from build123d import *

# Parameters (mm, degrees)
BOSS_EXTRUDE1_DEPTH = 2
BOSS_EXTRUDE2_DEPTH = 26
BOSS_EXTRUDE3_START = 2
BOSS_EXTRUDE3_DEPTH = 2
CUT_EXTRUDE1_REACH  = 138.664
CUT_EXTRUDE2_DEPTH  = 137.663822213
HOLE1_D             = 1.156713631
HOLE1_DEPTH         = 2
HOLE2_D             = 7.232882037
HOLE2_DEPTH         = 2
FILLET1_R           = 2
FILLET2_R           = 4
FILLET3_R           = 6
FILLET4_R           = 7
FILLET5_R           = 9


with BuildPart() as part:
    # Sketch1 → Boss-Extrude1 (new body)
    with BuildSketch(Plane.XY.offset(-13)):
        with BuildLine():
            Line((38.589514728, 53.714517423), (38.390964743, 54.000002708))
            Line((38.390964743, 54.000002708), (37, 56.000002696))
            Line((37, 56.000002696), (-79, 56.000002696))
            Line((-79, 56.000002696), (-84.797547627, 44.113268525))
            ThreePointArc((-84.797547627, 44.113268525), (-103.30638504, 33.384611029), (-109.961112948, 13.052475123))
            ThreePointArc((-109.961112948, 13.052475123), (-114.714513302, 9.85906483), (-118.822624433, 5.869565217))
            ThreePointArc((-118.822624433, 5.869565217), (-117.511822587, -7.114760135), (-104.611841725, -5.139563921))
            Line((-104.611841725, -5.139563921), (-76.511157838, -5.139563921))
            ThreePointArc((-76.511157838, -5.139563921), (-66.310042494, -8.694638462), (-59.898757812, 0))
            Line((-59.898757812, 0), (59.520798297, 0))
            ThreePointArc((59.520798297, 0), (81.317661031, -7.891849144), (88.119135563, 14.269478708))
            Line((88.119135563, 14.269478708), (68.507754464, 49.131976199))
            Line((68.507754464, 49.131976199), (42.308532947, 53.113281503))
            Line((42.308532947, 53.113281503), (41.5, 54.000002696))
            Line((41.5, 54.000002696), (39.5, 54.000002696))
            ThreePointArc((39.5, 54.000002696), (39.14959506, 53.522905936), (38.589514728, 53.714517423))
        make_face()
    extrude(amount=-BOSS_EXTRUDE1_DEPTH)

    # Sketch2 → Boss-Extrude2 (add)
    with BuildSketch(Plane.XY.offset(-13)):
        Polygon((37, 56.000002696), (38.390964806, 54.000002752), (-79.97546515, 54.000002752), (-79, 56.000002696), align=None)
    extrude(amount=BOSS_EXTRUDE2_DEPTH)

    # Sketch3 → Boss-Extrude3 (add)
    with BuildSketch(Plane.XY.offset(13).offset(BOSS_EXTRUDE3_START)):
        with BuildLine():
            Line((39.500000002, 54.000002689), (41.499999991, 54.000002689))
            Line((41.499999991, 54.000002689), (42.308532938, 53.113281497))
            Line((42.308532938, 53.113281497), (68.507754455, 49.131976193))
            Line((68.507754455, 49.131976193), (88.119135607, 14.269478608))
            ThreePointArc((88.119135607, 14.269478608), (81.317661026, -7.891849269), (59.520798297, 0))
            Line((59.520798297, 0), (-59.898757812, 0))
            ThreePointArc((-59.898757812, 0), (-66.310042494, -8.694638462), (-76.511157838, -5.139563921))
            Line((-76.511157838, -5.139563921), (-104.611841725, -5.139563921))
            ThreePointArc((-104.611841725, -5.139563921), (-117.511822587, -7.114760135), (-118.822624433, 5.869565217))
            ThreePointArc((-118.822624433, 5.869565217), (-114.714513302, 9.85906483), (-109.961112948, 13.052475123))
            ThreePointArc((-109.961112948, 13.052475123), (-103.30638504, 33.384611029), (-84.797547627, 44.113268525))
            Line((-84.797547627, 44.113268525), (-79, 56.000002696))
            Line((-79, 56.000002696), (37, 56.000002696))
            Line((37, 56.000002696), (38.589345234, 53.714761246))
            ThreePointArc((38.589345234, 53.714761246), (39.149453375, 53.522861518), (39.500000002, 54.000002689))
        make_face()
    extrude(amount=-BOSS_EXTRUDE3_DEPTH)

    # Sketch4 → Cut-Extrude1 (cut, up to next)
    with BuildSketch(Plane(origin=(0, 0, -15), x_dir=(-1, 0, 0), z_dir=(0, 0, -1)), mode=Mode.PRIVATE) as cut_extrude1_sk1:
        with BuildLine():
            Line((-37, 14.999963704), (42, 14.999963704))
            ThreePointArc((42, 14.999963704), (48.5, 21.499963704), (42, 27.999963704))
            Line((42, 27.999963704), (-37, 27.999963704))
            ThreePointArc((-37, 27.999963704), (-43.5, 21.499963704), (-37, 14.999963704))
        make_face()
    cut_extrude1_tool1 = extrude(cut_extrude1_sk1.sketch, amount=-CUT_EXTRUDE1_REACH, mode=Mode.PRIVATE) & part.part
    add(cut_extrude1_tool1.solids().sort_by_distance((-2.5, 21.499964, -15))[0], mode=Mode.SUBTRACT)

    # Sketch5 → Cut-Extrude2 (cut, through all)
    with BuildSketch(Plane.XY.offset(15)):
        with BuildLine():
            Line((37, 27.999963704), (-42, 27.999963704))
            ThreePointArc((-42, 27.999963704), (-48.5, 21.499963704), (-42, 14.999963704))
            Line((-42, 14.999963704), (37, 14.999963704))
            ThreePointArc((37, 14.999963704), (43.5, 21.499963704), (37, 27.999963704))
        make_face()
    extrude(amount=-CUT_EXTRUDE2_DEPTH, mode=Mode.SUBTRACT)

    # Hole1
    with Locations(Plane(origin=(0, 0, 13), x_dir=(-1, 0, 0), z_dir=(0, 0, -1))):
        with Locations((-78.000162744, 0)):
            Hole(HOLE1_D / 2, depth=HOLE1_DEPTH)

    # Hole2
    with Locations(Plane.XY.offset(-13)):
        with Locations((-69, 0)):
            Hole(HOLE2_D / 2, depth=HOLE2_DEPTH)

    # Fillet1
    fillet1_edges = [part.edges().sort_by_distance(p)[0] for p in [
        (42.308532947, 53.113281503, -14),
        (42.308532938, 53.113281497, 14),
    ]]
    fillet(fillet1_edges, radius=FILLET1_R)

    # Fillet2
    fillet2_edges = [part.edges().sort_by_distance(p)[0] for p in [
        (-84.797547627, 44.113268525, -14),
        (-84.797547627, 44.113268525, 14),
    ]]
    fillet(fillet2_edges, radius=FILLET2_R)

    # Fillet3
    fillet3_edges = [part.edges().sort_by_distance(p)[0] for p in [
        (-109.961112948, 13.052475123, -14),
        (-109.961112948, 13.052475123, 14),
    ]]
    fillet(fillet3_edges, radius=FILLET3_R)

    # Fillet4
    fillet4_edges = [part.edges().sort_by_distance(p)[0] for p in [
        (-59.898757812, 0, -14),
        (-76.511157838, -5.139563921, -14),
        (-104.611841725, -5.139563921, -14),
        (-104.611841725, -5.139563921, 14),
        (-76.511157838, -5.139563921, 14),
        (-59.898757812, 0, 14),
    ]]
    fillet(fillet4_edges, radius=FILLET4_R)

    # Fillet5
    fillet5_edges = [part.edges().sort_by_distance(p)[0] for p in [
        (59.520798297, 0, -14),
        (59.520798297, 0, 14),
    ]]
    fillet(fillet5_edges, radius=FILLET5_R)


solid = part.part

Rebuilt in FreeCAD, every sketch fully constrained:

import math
import FreeCAD as App
import Part
import Sketcher
from FreeCAD import Vector
Q = App.Units.Quantity


def edges_at(feature, points):
    """Names of the edges that pass closest to the given points."""
    edges = feature.Shape.Edges
    near = lambda p: min(range(len(edges)), key=lambda i: edges[i].distToShape(Part.Vertex(*p))[0])
    return sorted({f"Edge{near(p) + 1}" for p in points})

doc = App.newDocument("Part")
body = doc.addObject("PartDesign::Body", "Body")

# Sketch on XY plane
sketch1 = body.newObject("Sketcher::SketchObject", "Sketch")
sketch1.AttachmentSupport = (doc.getObject("XY_Plane"), [""])
sketch1.MapMode = "FlatFace"
sketch1.AttachmentOffset = App.Placement(Vector(0, 0, -13), App.Rotation())
sketch1.addGeometry([
    Part.LineSegment(Vector(38.59, 53.71, 0), Vector(38.39, 54, 0)),  # 0
    Part.LineSegment(Vector(38.39, 54, 0), Vector(37, 56, 0)),  # 1
    Part.LineSegment(Vector(37, 56, 0), Vector(-79, 56, 0)),  # 2
    Part.LineSegment(Vector(-79, 56, 0), Vector(-84.8, 44.11, 0)),  # 3
    Part.ArcOfCircle(Part.Circle(Vector(-80, 14.5, 0), Vector(0, 0, 1), 30), math.radians(99), math.radians(183)),  # 4
    Part.ArcOfCircle(Part.Circle(Vector(-94.56, -15, 0), Vector(0, 0, 1), 32), math.radians(119), math.radians(139)),  # 5
    Part.ArcOfCircle(Part.Circle(Vector(-112, 0, 0), Vector(0, 0, 1), 9), math.radians(139), math.radians(325)),  # 6
    Part.LineSegment(Vector(-104.61, -5.14, 0), Vector(-76.51, -5.14, 0)),  # 7
    Part.ArcOfCircle(Part.Circle(Vector(-69, 0, 0), Vector(0, 0, 1), 9.1), math.radians(-146), math.radians(0)),  # 8
    Part.LineSegment(Vector(-59.9, 0, 0), Vector(59.52, 0, 0)),  # 9
    Part.ArcOfCircle(Part.Circle(Vector(74.17, 6.42, 0), Vector(0, 0, 1), 16), math.radians(-156), math.radians(29)),  # 10
    Part.LineSegment(Vector(88.12, 14.27, 0), Vector(68.51, 49.13, 0)),  # 11
    Part.LineSegment(Vector(68.51, 49.13, 0), Vector(42.31, 53.11, 0)),  # 12
    Part.LineSegment(Vector(42.31, 53.11, 0), Vector(41.5, 54, 0)),  # 13
    Part.LineSegment(Vector(41.5, 54, 0), Vector(39.5, 54, 0)),  # 14
    Part.ArcOfCircle(Part.Circle(Vector(39, 54, 0), Vector(0, 0, 1), 0.5), math.radians(-145), math.radians(0)),  # 15
], False)
sketch1.addConstraint([
    Sketcher.Constraint("Coincident", 0, 2, 1, 1),
    Sketcher.Constraint("Coincident", 1, 2, 2, 1),
    Sketcher.Constraint("Coincident", 2, 2, 3, 1),
    Sketcher.Constraint("Coincident", 3, 2, 4, 1),
    Sketcher.Constraint("Coincident", 4, 2, 5, 1),
    Sketcher.Constraint("Tangent", 5, 2, 6, 1),
    Sketcher.Constraint("Coincident", 6, 2, 7, 1),
    Sketcher.Constraint("Coincident", 7, 2, 8, 1),
    Sketcher.Constraint("Coincident", 8, 2, 9, 1),
    Sketcher.Constraint("Coincident", 9, 2, 10, 1),
    Sketcher.Constraint("Tangent", 10, 2, 11, 1),
    Sketcher.Constraint("Coincident", 11, 2, 12, 1),
    Sketcher.Constraint("Coincident", 12, 2, 13, 1),
    Sketcher.Constraint("Coincident", 13, 2, 14, 1),
    Sketcher.Constraint("Coincident", 14, 2, 15, 2),
    Sketcher.Constraint("Tangent", 15, 1, 0, 1),
    Sketcher.Constraint("Horizontal", 2),
    Sketcher.Constraint("Horizontal", 7),
    Sketcher.Constraint("Horizontal", 9),
    Sketcher.Constraint("Horizontal", 14),
    Sketcher.Constraint("PointOnObject", 6, 3, -1),
    Sketcher.Constraint("PointOnObject", 8, 3, -1),
    Sketcher.Constraint("PointOnObject", 8, 2, -1),
    Sketcher.Constraint("Parallel", 0, 1),
    Sketcher.Constraint("Horizontal", 15, 3, 0, 2),
    Sketcher.Constraint("Horizontal", 0, 2, 13, 2),
    Sketcher.Constraint("Radius", 4, Q("30 mm")),
    Sketcher.Constraint("Radius", 5, Q("32 mm")),
    Sketcher.Constraint("Radius", 6, Q("9 mm")),
    Sketcher.Constraint("Radius", 10, Q("16 mm")),
    Sketcher.Constraint("Radius", 15, Q("0.5 mm")),
    Sketcher.Constraint("DistanceX", 2, 2, 2, 1, Q("116 mm")),
    Sketcher.Constraint("DistanceX", 14, 2, 14, 1, Q("2 mm")),
    Sketcher.Constraint("Angle", 3, Q("-116 deg")),
    Sketcher.Constraint("Distance", 11, Q("40 mm")),
    Sketcher.Constraint("DistanceY", 5, 3, -1, 1, Q("15 mm")),
    Sketcher.Constraint("DistanceX", 6, 3, -1, 1, Q("112 mm")),
    Sketcher.Constraint("DistanceX", 8, 3, -1, 1, Q("69 mm")),
    Sketcher.Constraint("DistanceX", -1, 1, 15, 3, Q("39 mm")),
    Sketcher.Constraint("DistanceX", -1, 1, 1, 2, Q("37 mm")),
    Sketcher.Constraint("DistanceY", 0, 2, 1, 2, Q("2 mm")),
    Sketcher.Constraint("Distance", 12, Q("26.5 mm")),
    Sketcher.Constraint("Distance", 13, Q("1.2 mm")),
    Sketcher.Constraint("DistanceY", -1, 1, 4, 3, Q("14.5 mm")),
    Sketcher.Constraint("Radius", 8, Q("9.101242 mm")),
    Sketcher.Constraint("DistanceX", 10, 3, 10, 2, Q("13.944999 mm")),
    Sketcher.Constraint("DistanceX", -1, 1, 9, 2, Q("59.520798 mm")),
    Sketcher.Constraint("DistanceX", 7, 2, 8, 2, Q("16.6124 mm")),
    Sketcher.Constraint("DistanceY", -1, 1, 3, 2, Q("44.113269 mm")),
    Sketcher.Constraint("DistanceY", -1, 1, 10, 2, Q("14.269479 mm")),
    Sketcher.Constraint("DistanceY", -1, 1, 12, 2, Q("53.113282 mm")),
])
pad1 = body.newObject("PartDesign::Pad", "Pad")
pad1.Profile = sketch1
pad1.Length = 2
pad1.Reversed = True

# Sketch on XY plane
sketch2 = body.newObject("Sketcher::SketchObject", "Sketch001")
sketch2.AttachmentSupport = (doc.getObject("XY_Plane"), [""])
sketch2.MapMode = "FlatFace"
sketch2.AttachmentOffset = App.Placement(Vector(0, 0, -13), App.Rotation())
sketch2.addGeometry([
    Part.LineSegment(Vector(38.4, 54, 0), Vector(37, 56, 0)),
    Part.LineSegment(Vector(37, 56, 0), Vector(-79, 56, 0)),
    Part.LineSegment(Vector(-79, 56, 0), Vector(-80, 54, 0)),
    Part.LineSegment(Vector(-80, 54, 0), Vector(38.4, 54, 0)),
], False)
sketch2.addConstraint([
    Sketcher.Constraint("Coincident", 0, 2, 1, 1),
    Sketcher.Constraint("Coincident", 1, 2, 2, 1),
    Sketcher.Constraint("Coincident", 2, 2, 3, 1),
    Sketcher.Constraint("Coincident", 3, 2, 0, 1),
    Sketcher.Constraint("Horizontal", 1),
    Sketcher.Constraint("Horizontal", 3),
    Sketcher.Constraint("DistanceX", 1, 2, 1, 1, Q("116 mm")),
    Sketcher.Constraint("Angle", 2, Q("-116 deg")),
    Sketcher.Constraint("DistanceX", -1, 1, 0, 2, Q("37 mm")),
    Sketcher.Constraint("DistanceY", 2, 2, 1, 2, Q("2 mm")),
    Sketcher.Constraint("DistanceX", 3, 1, 3, 2, Q("118.36643 mm")),
    Sketcher.Constraint("DistanceY", -1, 1, 0, 2, Q("56.000003 mm")),
])
pad2 = body.newObject("PartDesign::Pad", "Pad001")
pad2.Profile = sketch2
pad2.Length = 26

# Sketch on XY plane
sketch3 = body.newObject("Sketcher::SketchObject", "Sketch002")
sketch3.AttachmentSupport = (doc.getObject("XY_Plane"), [""])
sketch3.MapMode = "FlatFace"
sketch3.AttachmentOffset = App.Placement(Vector(0, 0, 15), App.Rotation())
sketch3.addGeometry([
    Part.LineSegment(Vector(41.5, 54, 0), Vector(39.5, 54, 0)),  # 0
    Part.ArcOfCircle(Part.Circle(Vector(39, 54, 0), Vector(0, 0, 1), 0.5), math.radians(-145), math.radians(0)),  # 1
    Part.LineSegment(Vector(38.6, 53.7, 0), Vector(37, 56, 0)),  # 2
    Part.LineSegment(Vector(37, 56, 0), Vector(-79, 56, 0)),  # 3
    Part.LineSegment(Vector(-79, 56, 0), Vector(-84.8, 44.1, 0)),  # 4
    Part.ArcOfCircle(Part.Circle(Vector(-80, 14.5, 0), Vector(0, 0, 1), 30), math.radians(99), math.radians(183)),  # 5
    Part.ArcOfCircle(Part.Circle(Vector(-94.6, -15, 0), Vector(0, 0, 1), 32), math.radians(119), math.radians(139)),  # 6
    Part.ArcOfCircle(Part.Circle(Vector(-112, 0, 0), Vector(0, 0, 1), 9), math.radians(139), math.radians(325)),  # 7
    Part.LineSegment(Vector(-104.6, -5.1, 0), Vector(-76.5, -5.1, 0)),  # 8
    Part.ArcOfCircle(Part.Circle(Vector(-69, 0, 0), Vector(0, 0, 1), 9.1), math.radians(-146), math.radians(0)),  # 9
    Part.LineSegment(Vector(-59.9, 0, 0), Vector(59.5, 0, 0)),  # 10
    Part.ArcOfCircle(Part.Circle(Vector(74.2, 6.4, 0), Vector(0, 0, 1), 16), math.radians(-156), math.radians(29)),  # 11
    Part.LineSegment(Vector(88.1, 14.3, 0), Vector(68.5, 49.1, 0)),  # 12
    Part.LineSegment(Vector(68.5, 49.1, 0), Vector(42.3, 53.1, 0)),  # 13
    Part.LineSegment(Vector(42.3, 53.1, 0), Vector(41.5, 54, 0)),  # 14
], False)
sketch3.addConstraint([
    Sketcher.Constraint("Coincident", 0, 2, 1, 2),
    Sketcher.Constraint("Coincident", 1, 1, 2, 1),
    Sketcher.Constraint("Coincident", 2, 2, 3, 1),
    Sketcher.Constraint("Coincident", 3, 2, 4, 1),
    Sketcher.Constraint("Coincident", 4, 2, 5, 1),
    Sketcher.Constraint("Coincident", 5, 2, 6, 1),
    Sketcher.Constraint("Tangent", 6, 2, 7, 1),
    Sketcher.Constraint("Coincident", 7, 2, 8, 1),
    Sketcher.Constraint("Coincident", 8, 2, 9, 1),
    Sketcher.Constraint("Coincident", 9, 2, 10, 1),
    Sketcher.Constraint("Coincident", 10, 2, 11, 1),
    Sketcher.Constraint("Tangent", 11, 2, 12, 1),
    Sketcher.Constraint("Coincident", 12, 2, 13, 1),
    Sketcher.Constraint("Coincident", 13, 2, 14, 1),
    Sketcher.Constraint("Coincident", 14, 2, 0, 1),
    Sketcher.Constraint("Horizontal", 0),
    Sketcher.Constraint("Horizontal", 3),
    Sketcher.Constraint("Horizontal", 8),
    Sketcher.Constraint("Horizontal", 10),
    Sketcher.Constraint("PointOnObject", 7, 3, -1),
    Sketcher.Constraint("PointOnObject", 9, 3, -1),
    Sketcher.Constraint("PointOnObject", 9, 2, -1),
    Sketcher.Constraint("Horizontal", 1, 3, 0, 2),
    Sketcher.Constraint("Radius", 5, Q("30 mm")),
    Sketcher.Constraint("Radius", 6, Q("32 mm")),
    Sketcher.Constraint("Radius", 7, Q("9 mm")),
    Sketcher.Constraint("Radius", 11, Q("16 mm")),
    Sketcher.Constraint("Radius", 1, Q("0.5 mm")),
    Sketcher.Constraint("DistanceX", 0, 2, 0, 1, Q("2 mm")),
    Sketcher.Constraint("DistanceX", 3, 2, 3, 1, Q("116 mm")),
    Sketcher.Constraint("Angle", 4, Q("-116 deg")),
    Sketcher.Constraint("Distance", 12, Q("40 mm")),
    Sketcher.Constraint("DistanceX", -1, 1, 1, 3, Q("39 mm")),
    Sketcher.Constraint("DistanceY", 6, 3, -1, 1, Q("15 mm")),
    Sketcher.Constraint("DistanceX", 7, 3, -1, 1, Q("112 mm")),
    Sketcher.Constraint("DistanceX", 9, 3, -1, 1, Q("69 mm")),
    Sketcher.Constraint("DistanceX", -1, 1, 2, 2, Q("37 mm")),
    Sketcher.Constraint("DistanceY", 1, 3, 2, 2, Q("2 mm")),
    Sketcher.Constraint("Distance", 13, Q("26.5 mm")),
    Sketcher.Constraint("Distance", 14, Q("1.2 mm")),
    Sketcher.Constraint("DistanceY", -1, 1, 5, 3, Q("14.5 mm")),
    Sketcher.Constraint("Radius", 9, Q("9.101242 mm")),
    Sketcher.Constraint("DistanceX", 11, 3, 11, 2, Q("13.944999 mm")),
    Sketcher.Constraint("DistanceX", -1, 1, 10, 2, Q("59.520798 mm")),
    Sketcher.Constraint("DistanceX", 5, 3, 1, 1, Q("118.585401 mm")),
    Sketcher.Constraint("DistanceX", 8, 2, 9, 2, Q("16.6124 mm")),
    Sketcher.Constraint("DistanceY", -1, 1, 1, 1, Q("53.714761 mm")),
    Sketcher.Constraint("DistanceY", -1, 1, 4, 2, Q("44.113269 mm")),
    Sketcher.Constraint("DistanceY", -1, 1, 11, 2, Q("14.269479 mm")),
])
pad3 = body.newObject("PartDesign::Pad", "Pad002")
pad3.Profile = sketch3
pad3.Length = 2
pad3.Reversed = True

# Sketch on XY plane
sketch4 = body.newObject("Sketcher::SketchObject", "Sketch003")
sketch4.AttachmentSupport = (doc.getObject("XY_Plane"), [""])
sketch4.MapMode = "FlatFace"
sketch4.AttachmentOffset = App.Placement(Vector(0, 0, -15), App.Rotation())
sketch4.addGeometry([
    Part.LineSegment(Vector(37, 15, 0), Vector(-42, 15, 0)),
    Part.ArcOfCircle(Part.Circle(Vector(-42, 21, 0), Vector(0, 0, 1), 6), math.radians(90), math.radians(270)),
    Part.LineSegment(Vector(-42, 28, 0), Vector(37, 28, 0)),
    Part.ArcOfCircle(Part.Circle(Vector(37, 21, 0), Vector(0, 0, 1), 6), math.radians(-90), math.radians(90)),
], False)
sketch4.addConstraint([
    Sketcher.Constraint("Tangent", 0, 2, 1, 2),
    Sketcher.Constraint("Tangent", 1, 1, 2, 1),
    Sketcher.Constraint("Tangent", 2, 2, 3, 2),
    Sketcher.Constraint("Tangent", 3, 1, 0, 1),
    Sketcher.Constraint("Horizontal", 0),
    Sketcher.Constraint("Horizontal", 2),
    Sketcher.Constraint("Radius", 1, Q("6.5 mm")),
    Sketcher.Constraint("DistanceX", 0, 2, 0, 1, Q("79 mm")),
    Sketcher.Constraint("DistanceX", 1, 3, -1, 1, Q("42 mm")),
    Sketcher.Constraint("DistanceY", -1, 1, 1, 3, Q("21.499964 mm")),
])
pocket1 = body.newObject("PartDesign::Pocket", "Pocket")
pocket1.Profile = sketch4
pocket1.Type = "UpToFirst"
pocket1.Reversed = True

# Sketch on XY plane
sketch5 = body.newObject("Sketcher::SketchObject", "Sketch004")
sketch5.AttachmentSupport = (doc.getObject("XY_Plane"), [""])
sketch5.MapMode = "FlatFace"
sketch5.AttachmentOffset = App.Placement(Vector(0, 0, 15), App.Rotation())
sketch5.addGeometry([
    Part.LineSegment(Vector(37, 28, 0), Vector(-42, 28, 0)),
    Part.ArcOfCircle(Part.Circle(Vector(-42, 21, 0), Vector(0, 0, 1), 6), math.radians(90), math.radians(270)),
    Part.LineSegment(Vector(-42, 15, 0), Vector(37, 15, 0)),
    Part.ArcOfCircle(Part.Circle(Vector(37, 21, 0), Vector(0, 0, 1), 6), math.radians(-90), math.radians(90)),
], False)
sketch5.addConstraint([
    Sketcher.Constraint("Tangent", 0, 2, 1, 1),
    Sketcher.Constraint("Tangent", 1, 2, 2, 1),
    Sketcher.Constraint("Tangent", 2, 2, 3, 1),
    Sketcher.Constraint("Tangent", 3, 2, 0, 1),
    Sketcher.Constraint("Horizontal", 0),
    Sketcher.Constraint("Horizontal", 2),
    Sketcher.Constraint("Radius", 1, Q("6.5 mm")),
    Sketcher.Constraint("DistanceX", 0, 2, 0, 1, Q("79 mm")),
    Sketcher.Constraint("DistanceX", 1, 3, -1, 1, Q("42 mm")),
    Sketcher.Constraint("DistanceY", -1, 1, 1, 3, Q("21.499964 mm")),
])
pocket2 = body.newObject("PartDesign::Pocket", "Pocket001")
pocket2.Profile = sketch5
pocket2.Type = "ThroughAll"

# Sketch on XY plane
sketch6 = body.newObject("Sketcher::SketchObject", "Sketch005")
sketch6.AttachmentSupport = (doc.getObject("XY_Plane"), [""])
sketch6.MapMode = "FlatFace"
sketch6.AttachmentOffset = App.Placement(Vector(0, 0, 13), App.Rotation())
sketch6.addGeometry(Part.Circle(Vector(78, 0, 0), Vector(0, 0, 1), 0.6), False)
sketch6.addConstraint([
    Sketcher.Constraint("PointOnObject", 0, 3, -1),
    Sketcher.Constraint("Diameter", 0, Q("1.156714 mm")),
    Sketcher.Constraint("DistanceX", -1, 1, 0, 3, Q("78.000163 mm")),
])
doc.recompute()
hole = body.newObject("PartDesign::Hole", "Hole")
hole.Profile = sketch6
hole.ThreadType = "None"
hole.Diameter = 1.156714
hole.DepthType = "Dimension"
hole.Depth = 2
hole.DrillPoint = "Flat"
hole.Reversed = True

# Sketch on XY plane
sketch7 = body.newObject("Sketcher::SketchObject", "Sketch006")
sketch7.AttachmentSupport = (doc.getObject("XY_Plane"), [""])
sketch7.MapMode = "FlatFace"
sketch7.AttachmentOffset = App.Placement(Vector(0, 0, -13), App.Rotation())
sketch7.addGeometry(Part.Circle(Vector(-69, 0, 0), Vector(0, 0, 1), 3.6), False)
sketch7.addConstraint([
    Sketcher.Constraint("PointOnObject", 0, 3, -1),
    Sketcher.Constraint("DistanceX", 0, 3, -1, 1, Q("69 mm")),
    Sketcher.Constraint("Diameter", 0, Q("7.232882 mm")),
])
doc.recompute()
hole2 = body.newObject("PartDesign::Hole", "Hole001")
hole2.Profile = sketch7
hole2.ThreadType = "None"
hole2.Diameter = 7.232882
hole2.DepthType = "Dimension"
hole2.Depth = 2
hole2.DrillPoint = "Flat"
doc.recompute()

fillet = body.newObject("PartDesign::Fillet", "Fillet")
fillet.Base = (hole2, edges_at(hole2, [(42.309, 53.113, -14), (42.309, 53.113, 14)]))
fillet.Radius = 2
doc.recompute()

fillet2 = body.newObject("PartDesign::Fillet", "Fillet001")
fillet2.Base = (fillet, edges_at(fillet, [(-84.798, 44.113, -14), (-84.798, 44.113, 14)]))
fillet2.Radius = 4
doc.recompute()

fillet3 = body.newObject("PartDesign::Fillet", "Fillet002")
fillet3.Base = (fillet2, edges_at(fillet2, [(-109.961, 13.052, -14), (-109.961, 13.052, 14)]))
fillet3.Radius = 6
doc.recompute()

fillet4 = body.newObject("PartDesign::Fillet", "Fillet003")
fillet4.Base = (fillet3, edges_at(fillet3, [
    (-59.899, 0, -14),
    (-76.511, -5.14, -14),
    (-104.612, -5.14, -14),
    (-104.612, -5.14, 14),
    (-76.511, -5.14, 14),
    (-59.899, 0, 14),
]))
fillet4.Radius = 7
doc.recompute()

fillet5 = body.newObject("PartDesign::Fillet", "Fillet004")
fillet5.Base = (fillet4, edges_at(fillet4, [(59.521, 0, -14), (59.521, 0, 14)]))
fillet5.Radius = 9

doc.recompute()
